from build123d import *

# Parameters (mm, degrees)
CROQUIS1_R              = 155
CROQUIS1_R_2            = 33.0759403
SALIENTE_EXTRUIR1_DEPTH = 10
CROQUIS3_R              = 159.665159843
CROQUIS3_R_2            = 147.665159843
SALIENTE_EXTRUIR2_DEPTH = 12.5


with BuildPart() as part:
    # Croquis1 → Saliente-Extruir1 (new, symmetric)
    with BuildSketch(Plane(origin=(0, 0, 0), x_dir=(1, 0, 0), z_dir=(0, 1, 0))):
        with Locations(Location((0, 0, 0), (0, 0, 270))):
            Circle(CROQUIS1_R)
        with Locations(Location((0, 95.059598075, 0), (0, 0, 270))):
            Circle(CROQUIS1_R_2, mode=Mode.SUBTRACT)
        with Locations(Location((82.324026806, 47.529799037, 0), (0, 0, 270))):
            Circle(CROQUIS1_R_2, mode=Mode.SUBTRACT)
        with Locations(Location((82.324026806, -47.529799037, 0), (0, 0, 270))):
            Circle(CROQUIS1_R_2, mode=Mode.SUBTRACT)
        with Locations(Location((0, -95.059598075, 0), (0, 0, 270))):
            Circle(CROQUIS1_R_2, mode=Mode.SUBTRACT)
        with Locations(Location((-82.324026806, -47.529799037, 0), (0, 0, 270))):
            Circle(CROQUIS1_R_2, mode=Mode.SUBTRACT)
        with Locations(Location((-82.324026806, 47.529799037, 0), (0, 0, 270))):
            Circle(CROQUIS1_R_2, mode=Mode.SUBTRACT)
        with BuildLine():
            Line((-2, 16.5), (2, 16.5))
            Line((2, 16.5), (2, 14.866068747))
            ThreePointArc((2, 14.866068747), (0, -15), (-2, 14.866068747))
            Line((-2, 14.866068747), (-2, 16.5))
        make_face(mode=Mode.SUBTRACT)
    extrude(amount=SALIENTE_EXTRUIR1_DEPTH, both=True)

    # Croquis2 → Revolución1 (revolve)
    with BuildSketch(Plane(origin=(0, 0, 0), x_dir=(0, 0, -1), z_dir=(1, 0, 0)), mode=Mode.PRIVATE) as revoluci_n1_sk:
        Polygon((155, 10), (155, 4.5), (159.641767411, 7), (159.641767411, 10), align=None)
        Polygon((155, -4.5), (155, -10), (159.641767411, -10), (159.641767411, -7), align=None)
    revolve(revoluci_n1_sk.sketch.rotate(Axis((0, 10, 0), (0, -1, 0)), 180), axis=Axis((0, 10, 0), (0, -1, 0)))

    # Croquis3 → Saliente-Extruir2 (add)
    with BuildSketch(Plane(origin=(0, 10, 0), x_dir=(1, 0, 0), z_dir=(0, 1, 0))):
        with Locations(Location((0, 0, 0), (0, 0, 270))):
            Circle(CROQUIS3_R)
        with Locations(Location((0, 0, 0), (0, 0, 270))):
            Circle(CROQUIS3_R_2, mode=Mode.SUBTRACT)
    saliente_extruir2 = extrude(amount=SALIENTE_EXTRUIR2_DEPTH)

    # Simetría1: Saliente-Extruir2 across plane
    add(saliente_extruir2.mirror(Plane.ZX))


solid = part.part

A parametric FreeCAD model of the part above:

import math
import FreeCAD as App
import Part
import Sketcher
from FreeCAD import Vector


def add_polygon(sketch, points):
    """Adds a closed chain of lines whose ends are joined by coincident constraints."""
    first, n = sketch.GeometryCount, len(points)
    for a, b in zip(points, points[1:] + points[:1]):
        sketch.addGeometry(Part.LineSegment(App.Vector(*a, 0), App.Vector(*b, 0)), False)
    for i in range(n):
        sketch.addConstraint(Sketcher.Constraint("Coincident", first + i, 2, first + (i + 1) % n, 1))

doc = App.newDocument("Part")
body = doc.addObject("PartDesign::Body", "Body")

# Sketch on XZ plane
sketch1 = body.newObject("Sketcher::SketchObject", "Sketch")
sketch1.AttachmentSupport = (doc.getObject("XZ_Plane"), [""])
sketch1.MapMode = "FlatFace"
sketch1.addGeometry(Part.Circle(Vector(0, 0, 0), Vector(0, 0, 1), 155), False)
sketch1.addGeometry(Part.Circle(Vector(-82.3, -47.5, 0), Vector(0, 0, 1), 33.1), False)
sketch1.addGeometry(Part.Circle(Vector(0, -95.1, 0), Vector(0, 0, 1), 33.1), False)
sketch1.addGeometry(Part.Circle(Vector(-82.3, 47.5, 0), Vector(0, 0, 1), 33.1), False)
sketch1.addGeometry(Part.LineSegment(Vector(-2, -14.9, 0), Vector(-2, -16.5, 0)), False)
sketch1.addGeometry(Part.LineSegment(Vector(-2, -16.5, 0), Vector(2, -16.5, 0)), False)
sketch1.addGeometry(Part.LineSegment(Vector(2, -16.5, 0), Vector(2, -14.9, 0)), False)
sketch1.addGeometry(Part.ArcOfCircle(Part.Circle(Vector(0, 0, 0), Vector(0, 0, 1), 15), math.radians(-82), math.radians(262)), False)
sketch1.addGeometry(Part.Circle(Vector(82.3, -47.5, 0), Vector(0, 0, 1), 33.1), False)
sketch1.addGeometry(Part.Circle(Vector(0, 95.1, 0), Vector(0, 0, 1), 33.1), False)
sketch1.addGeometry(Part.Circle(Vector(82.3, 47.5, 0), Vector(0, 0, 1), 33.1), False)
sketch1.addConstraint(Sketcher.Constraint("Coincident", 4, 2, 5, 1))
sketch1.addConstraint(Sketcher.Constraint("Coincident", 5, 2, 6, 1))
sketch1.addConstraint(Sketcher.Constraint("Coincident", 6, 2, 7, 1))
sketch1.addConstraint(Sketcher.Constraint("Coincident", 7, 2, 4, 1))
sketch1.addConstraint(Sketcher.Constraint("Vertical", 4))
sketch1.addConstraint(Sketcher.Constraint("Horizontal", 5))
sketch1.addConstraint(Sketcher.Constraint("Vertical", 6))
sketch1.addConstraint(Sketcher.Constraint("Coincident", 0, 3, -1, 1))
sketch1.addConstraint(Sketcher.Constraint("Coincident", 7, 3, -1, 1))
sketch1.addConstraint(Sketcher.Constraint("Equal", 1, 2))
sketch1.addConstraint(Sketcher.Constraint("Equal", 2, 3))
sketch1.addConstraint(Sketcher.Constraint("Equal", 3, 8))
sketch1.addConstraint(Sketcher.Constraint("Equal", 8, 9))
sketch1.addConstraint(Sketcher.Constraint("Equal", 9, 10))
sketch1.addConstraint(Sketcher.Constraint("Symmetric", 3, 3, 8, 3, -1, 1))
sketch1.addConstraint(Sketcher.Constraint("Symmetric", 2, 3, 9, 3, -1, 1))
sketch1.addConstraint(Sketcher.Constraint("Symmetric", 1, 3, 10, 3, -1, 1))
sketch1.addConstraint(Sketcher.Constraint("Symmetric", 1, 3, 8, 3, -2))
sketch1.addConstraint(Sketcher.Constraint("PointOnObject", 2, 3, -2))
sketch1.addConstraint(Sketcher.Constraint("Horizontal", 6, 2, 7, 2))
sketch1.addConstraint(Sketcher.Constraint("Diameter", 0, 310.0))
sketch1.addConstraint(Sketcher.Constraint("Radius", 7, 15.0))
sketch1.addConstraint(Sketcher.Constraint("DistanceX", 5, 1, 5, 2, 4.0))
sketch1.addConstraint(Sketcher.Constraint("DistanceY", 4, 2, -1, 1, 16.5))
sketch1.addConstraint(Sketcher.Constraint("Diameter", 1, 66.151881))
sketch1.addConstraint(Sketcher.Constraint("DistanceY", 1, 3, -1, 1, 47.529799))
sketch1.addConstraint(Sketcher.Constraint("DistanceY", 2, 3, -1, 1, 95.059598))
sketch1.addConstraint(Sketcher.Constraint("DistanceX", 1, 3, -1, 1, 82.324027))
pad1 = body.newObject("PartDesign::Pad", "Pad")
pad1.Profile = sketch1
pad1.Length = 20
pad1.Midplane = True

# Sketch on YZ plane
sketch2 = body.newObject("Sketcher::SketchObject", "Sketch001")
sketch2.AttachmentSupport = (doc.getObject("YZ_Plane"), [""])
sketch2.MapMode = "FlatFace"
add_polygon(sketch2, [(10, -155), (4.5, -155), (7, -159.6), (10, -159.6)])  # lines 0-3
add_polygon(sketch2, [(-4.5, -155), (-10, -155), (-10, -159.6), (-7, -159.6)])  # lines 4-7
sketch2.addConstraint(Sketcher.Constraint("Horizontal", 0))
sketch2.addConstraint(Sketcher.Constraint("Horizontal", 2))
sketch2.addConstraint(Sketcher.Constraint("Vertical", 3))
sketch2.addConstraint(Sketcher.Constraint("Horizontal", 4))
sketch2.addConstraint(Sketcher.Constraint("Vertical", 5))
sketch2.addConstraint(Sketcher.Constraint("Horizontal", 6))
sketch2.addConstraint(Sketcher.Constraint("Symmetric", 3, 2, 4, 2, -2))
sketch2.addConstraint(Sketcher.Constraint("Symmetric", 1, 2, 6, 2, -2))
sketch2.addConstraint(Sketcher.Constraint("Equal", 0, 4))
sketch2.addConstraint(Sketcher.Constraint("DistanceX", 2, 1, 2, 2, 3.0))
sketch2.addConstraint(Sketcher.Constraint("DistanceX", 0, 2, 0, 1, 5.5))
sketch2.addConstraint(Sketcher.Constraint("DistanceY", 0, 2, -1, 1, 155.0))
sketch2.addConstraint(Sketcher.Constraint("DistanceX", -1, 1, 1, 2, 7.0))
sketch2.addConstraint(Sketcher.Constraint("Distance", 1, 5.272192))
revolution = body.newObject("PartDesign::Revolution", "Revolution")
revolution.Profile = sketch2
revolution.ReferenceAxis = (sketch2, ["H_Axis"])
revolution.Angle = 360

# Sketch on XZ plane
sketch3 = body.newObject("Sketcher::SketchObject", "Sketch002")
sketch3.AttachmentSupport = (doc.getObject("XZ_Plane"), [""])
sketch3.MapMode = "FlatFace"
sketch3.AttachmentOffset = App.Placement(Vector(0, 0, -10), App.Rotation())
sketch3.addGeometry(Part.Circle(Vector(0, 0, 0), Vector(0, 0, 1), 160), False)
sketch3.addGeometry(Part.Circle(Vector(0, 0, 0), Vector(0, 0, 1), 148), False)
sketch3.addConstraint(Sketcher.Constraint("Coincident", 0, 3, -1, 1))
sketch3.addConstraint(Sketcher.Constraint("Coincident", 1, 3, -1, 1))
sketch3.addConstraint(Sketcher.Constraint("Diameter", 0, 319.33032))
sketch3.addConstraint(Sketcher.Constraint("Diameter", 1, 295.33032))
pad2 = body.newObject("PartDesign::Pad", "Pad001")
pad2.Profile = sketch3
pad2.Length = 12.5
pad2.Reversed = True
doc.recompute()

mirrored = body.newObject("PartDesign::Mirrored", "Mirrored")
mirrored.Originals = [pad2]
mirrored.MirrorPlane = (doc.getObject("XZ_Plane"), [""])
body.Tip = mirrored

doc.recompute()
